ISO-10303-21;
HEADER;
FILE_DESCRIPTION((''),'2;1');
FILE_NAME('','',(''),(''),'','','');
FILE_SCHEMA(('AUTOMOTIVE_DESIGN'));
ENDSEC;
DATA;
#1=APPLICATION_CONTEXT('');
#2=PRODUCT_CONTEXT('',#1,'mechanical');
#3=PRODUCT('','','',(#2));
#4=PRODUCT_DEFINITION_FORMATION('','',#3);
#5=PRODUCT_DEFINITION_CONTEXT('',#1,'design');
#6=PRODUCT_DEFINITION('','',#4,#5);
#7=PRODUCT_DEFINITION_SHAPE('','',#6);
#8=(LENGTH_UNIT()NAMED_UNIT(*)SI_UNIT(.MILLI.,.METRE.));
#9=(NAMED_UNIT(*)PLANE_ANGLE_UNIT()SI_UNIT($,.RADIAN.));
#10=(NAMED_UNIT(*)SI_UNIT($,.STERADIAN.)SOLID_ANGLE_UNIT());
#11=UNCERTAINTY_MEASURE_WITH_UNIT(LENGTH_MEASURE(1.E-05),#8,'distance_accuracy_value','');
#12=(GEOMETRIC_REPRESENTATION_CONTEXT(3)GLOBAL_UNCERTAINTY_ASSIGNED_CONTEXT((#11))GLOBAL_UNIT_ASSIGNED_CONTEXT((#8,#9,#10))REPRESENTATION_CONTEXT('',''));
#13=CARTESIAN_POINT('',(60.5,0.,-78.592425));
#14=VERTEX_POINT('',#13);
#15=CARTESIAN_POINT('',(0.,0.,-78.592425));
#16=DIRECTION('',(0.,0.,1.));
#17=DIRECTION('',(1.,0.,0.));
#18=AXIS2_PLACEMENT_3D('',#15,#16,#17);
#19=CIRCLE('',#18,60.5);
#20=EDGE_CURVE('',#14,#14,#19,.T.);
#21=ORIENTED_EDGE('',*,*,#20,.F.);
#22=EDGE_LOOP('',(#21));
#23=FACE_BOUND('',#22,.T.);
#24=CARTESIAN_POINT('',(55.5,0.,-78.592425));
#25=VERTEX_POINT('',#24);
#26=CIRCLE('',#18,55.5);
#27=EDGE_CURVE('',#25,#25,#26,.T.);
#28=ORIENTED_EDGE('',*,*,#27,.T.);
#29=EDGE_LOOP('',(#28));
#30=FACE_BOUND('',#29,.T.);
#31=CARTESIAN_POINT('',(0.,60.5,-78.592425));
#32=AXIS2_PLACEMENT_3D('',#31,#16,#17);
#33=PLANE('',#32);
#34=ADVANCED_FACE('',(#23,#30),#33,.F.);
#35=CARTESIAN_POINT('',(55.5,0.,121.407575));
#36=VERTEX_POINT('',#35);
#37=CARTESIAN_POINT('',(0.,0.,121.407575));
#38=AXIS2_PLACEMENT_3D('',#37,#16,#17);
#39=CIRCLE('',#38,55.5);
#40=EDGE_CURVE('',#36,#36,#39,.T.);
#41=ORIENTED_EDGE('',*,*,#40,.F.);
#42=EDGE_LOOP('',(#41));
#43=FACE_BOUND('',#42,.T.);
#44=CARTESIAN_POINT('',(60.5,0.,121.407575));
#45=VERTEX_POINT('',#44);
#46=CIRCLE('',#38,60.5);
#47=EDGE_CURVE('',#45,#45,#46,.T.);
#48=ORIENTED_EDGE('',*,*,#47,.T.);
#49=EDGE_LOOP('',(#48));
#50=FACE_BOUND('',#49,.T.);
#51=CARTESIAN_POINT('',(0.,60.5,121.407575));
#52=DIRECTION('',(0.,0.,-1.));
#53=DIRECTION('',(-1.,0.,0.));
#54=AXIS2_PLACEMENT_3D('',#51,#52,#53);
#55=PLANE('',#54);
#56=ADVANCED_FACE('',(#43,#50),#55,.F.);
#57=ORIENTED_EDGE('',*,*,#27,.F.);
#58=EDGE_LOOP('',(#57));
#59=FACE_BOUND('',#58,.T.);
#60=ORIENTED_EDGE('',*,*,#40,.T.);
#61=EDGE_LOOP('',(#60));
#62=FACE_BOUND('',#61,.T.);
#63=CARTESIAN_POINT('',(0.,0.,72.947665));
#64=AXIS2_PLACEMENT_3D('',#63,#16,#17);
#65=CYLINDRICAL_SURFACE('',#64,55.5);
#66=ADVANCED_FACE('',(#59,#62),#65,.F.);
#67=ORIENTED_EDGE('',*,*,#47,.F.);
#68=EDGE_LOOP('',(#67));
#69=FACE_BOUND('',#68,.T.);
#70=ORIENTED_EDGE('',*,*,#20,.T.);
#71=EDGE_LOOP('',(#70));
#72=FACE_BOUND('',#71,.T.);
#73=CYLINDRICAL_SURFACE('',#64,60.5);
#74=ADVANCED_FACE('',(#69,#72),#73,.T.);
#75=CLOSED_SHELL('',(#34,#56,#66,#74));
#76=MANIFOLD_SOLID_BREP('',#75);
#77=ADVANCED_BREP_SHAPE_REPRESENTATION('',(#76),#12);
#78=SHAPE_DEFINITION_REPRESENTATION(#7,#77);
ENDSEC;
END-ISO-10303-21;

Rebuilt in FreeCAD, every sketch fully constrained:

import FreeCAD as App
import Part
import Sketcher
from FreeCAD import Vector
Q = App.Units.Quantity

doc = App.newDocument("Part")
params = doc.addObject("Spreadsheet::Sheet", "Params")
for row, (alias, value) in enumerate([
    ("sketch1_width", "5 mm"),
    ("sketch1_height", "200 mm"),
    ("revolution_angle", "360 deg"),
], start=1):
    params.set(f"A{row}", alias)
    params.set(f"B{row}", "=" + value)
    params.setAlias(f"B{row}", alias)

body = doc.addObject("PartDesign::Body", "Body")

sketch1 = doc.addObject("Sketcher::SketchObject", "Sketch")
body.addObject(sketch1)
sketch1.AttachmentSupport = (doc.YZ_Plane, [""])
sketch1.MapMode = "FlatFace"
sketch1.addGeometry([
    Part.LineSegment(Vector(60.5, 121.407575, 0), Vector(55.5, 121.407575, 0)),
    Part.LineSegment(Vector(55.5, 121.407575, 0), Vector(55.5, -78.592425, 0)),
    Part.LineSegment(Vector(55.5, -78.592425, 0), Vector(60.5, -78.592425, 0)),
    Part.LineSegment(Vector(60.5, -78.592425, 0), Vector(60.5, 121.407575, 0)),
], False)
sketch1.addConstraint([
    Sketcher.Constraint("Coincident", 0, 2, 1, 1),
    Sketcher.Constraint("Coincident", 1, 2, 2, 1),
    Sketcher.Constraint("Coincident", 2, 2, 3, 1),
    Sketcher.Constraint("Coincident", 3, 2, 0, 1),
    Sketcher.Constraint("Horizontal", 0),
    Sketcher.Constraint("Vertical", 1),
    Sketcher.Constraint("Horizontal", 2),
    Sketcher.Constraint("Vertical", 3),
    Sketcher.Constraint("DistanceX", 0, 2, 0, 1, Q("5 mm")),
    Sketcher.Constraint("DistanceY", 1, 2, 1, 1, Q("200 mm")),
    Sketcher.Constraint("DistanceX", -1, 1, 0, 2, Q("55.5 mm")),
    Sketcher.Constraint("DistanceY", -1, 1, 0, 2, Q("121.407575 mm")),
])
sketch1.setExpression("Constraints[8]", "Params.sketch1_width")
sketch1.setExpression("Constraints[9]", "Params.sketch1_height")
revolution = doc.addObject("PartDesign::Revolution", "Revolution")
body.addObject(revolution)
revolution.Profile = sketch1
revolution.ReferenceAxis = (sketch1, ["V_Axis"])
revolution.setExpression("Angle", "Params.revolution_angle")

doc.recompute()
